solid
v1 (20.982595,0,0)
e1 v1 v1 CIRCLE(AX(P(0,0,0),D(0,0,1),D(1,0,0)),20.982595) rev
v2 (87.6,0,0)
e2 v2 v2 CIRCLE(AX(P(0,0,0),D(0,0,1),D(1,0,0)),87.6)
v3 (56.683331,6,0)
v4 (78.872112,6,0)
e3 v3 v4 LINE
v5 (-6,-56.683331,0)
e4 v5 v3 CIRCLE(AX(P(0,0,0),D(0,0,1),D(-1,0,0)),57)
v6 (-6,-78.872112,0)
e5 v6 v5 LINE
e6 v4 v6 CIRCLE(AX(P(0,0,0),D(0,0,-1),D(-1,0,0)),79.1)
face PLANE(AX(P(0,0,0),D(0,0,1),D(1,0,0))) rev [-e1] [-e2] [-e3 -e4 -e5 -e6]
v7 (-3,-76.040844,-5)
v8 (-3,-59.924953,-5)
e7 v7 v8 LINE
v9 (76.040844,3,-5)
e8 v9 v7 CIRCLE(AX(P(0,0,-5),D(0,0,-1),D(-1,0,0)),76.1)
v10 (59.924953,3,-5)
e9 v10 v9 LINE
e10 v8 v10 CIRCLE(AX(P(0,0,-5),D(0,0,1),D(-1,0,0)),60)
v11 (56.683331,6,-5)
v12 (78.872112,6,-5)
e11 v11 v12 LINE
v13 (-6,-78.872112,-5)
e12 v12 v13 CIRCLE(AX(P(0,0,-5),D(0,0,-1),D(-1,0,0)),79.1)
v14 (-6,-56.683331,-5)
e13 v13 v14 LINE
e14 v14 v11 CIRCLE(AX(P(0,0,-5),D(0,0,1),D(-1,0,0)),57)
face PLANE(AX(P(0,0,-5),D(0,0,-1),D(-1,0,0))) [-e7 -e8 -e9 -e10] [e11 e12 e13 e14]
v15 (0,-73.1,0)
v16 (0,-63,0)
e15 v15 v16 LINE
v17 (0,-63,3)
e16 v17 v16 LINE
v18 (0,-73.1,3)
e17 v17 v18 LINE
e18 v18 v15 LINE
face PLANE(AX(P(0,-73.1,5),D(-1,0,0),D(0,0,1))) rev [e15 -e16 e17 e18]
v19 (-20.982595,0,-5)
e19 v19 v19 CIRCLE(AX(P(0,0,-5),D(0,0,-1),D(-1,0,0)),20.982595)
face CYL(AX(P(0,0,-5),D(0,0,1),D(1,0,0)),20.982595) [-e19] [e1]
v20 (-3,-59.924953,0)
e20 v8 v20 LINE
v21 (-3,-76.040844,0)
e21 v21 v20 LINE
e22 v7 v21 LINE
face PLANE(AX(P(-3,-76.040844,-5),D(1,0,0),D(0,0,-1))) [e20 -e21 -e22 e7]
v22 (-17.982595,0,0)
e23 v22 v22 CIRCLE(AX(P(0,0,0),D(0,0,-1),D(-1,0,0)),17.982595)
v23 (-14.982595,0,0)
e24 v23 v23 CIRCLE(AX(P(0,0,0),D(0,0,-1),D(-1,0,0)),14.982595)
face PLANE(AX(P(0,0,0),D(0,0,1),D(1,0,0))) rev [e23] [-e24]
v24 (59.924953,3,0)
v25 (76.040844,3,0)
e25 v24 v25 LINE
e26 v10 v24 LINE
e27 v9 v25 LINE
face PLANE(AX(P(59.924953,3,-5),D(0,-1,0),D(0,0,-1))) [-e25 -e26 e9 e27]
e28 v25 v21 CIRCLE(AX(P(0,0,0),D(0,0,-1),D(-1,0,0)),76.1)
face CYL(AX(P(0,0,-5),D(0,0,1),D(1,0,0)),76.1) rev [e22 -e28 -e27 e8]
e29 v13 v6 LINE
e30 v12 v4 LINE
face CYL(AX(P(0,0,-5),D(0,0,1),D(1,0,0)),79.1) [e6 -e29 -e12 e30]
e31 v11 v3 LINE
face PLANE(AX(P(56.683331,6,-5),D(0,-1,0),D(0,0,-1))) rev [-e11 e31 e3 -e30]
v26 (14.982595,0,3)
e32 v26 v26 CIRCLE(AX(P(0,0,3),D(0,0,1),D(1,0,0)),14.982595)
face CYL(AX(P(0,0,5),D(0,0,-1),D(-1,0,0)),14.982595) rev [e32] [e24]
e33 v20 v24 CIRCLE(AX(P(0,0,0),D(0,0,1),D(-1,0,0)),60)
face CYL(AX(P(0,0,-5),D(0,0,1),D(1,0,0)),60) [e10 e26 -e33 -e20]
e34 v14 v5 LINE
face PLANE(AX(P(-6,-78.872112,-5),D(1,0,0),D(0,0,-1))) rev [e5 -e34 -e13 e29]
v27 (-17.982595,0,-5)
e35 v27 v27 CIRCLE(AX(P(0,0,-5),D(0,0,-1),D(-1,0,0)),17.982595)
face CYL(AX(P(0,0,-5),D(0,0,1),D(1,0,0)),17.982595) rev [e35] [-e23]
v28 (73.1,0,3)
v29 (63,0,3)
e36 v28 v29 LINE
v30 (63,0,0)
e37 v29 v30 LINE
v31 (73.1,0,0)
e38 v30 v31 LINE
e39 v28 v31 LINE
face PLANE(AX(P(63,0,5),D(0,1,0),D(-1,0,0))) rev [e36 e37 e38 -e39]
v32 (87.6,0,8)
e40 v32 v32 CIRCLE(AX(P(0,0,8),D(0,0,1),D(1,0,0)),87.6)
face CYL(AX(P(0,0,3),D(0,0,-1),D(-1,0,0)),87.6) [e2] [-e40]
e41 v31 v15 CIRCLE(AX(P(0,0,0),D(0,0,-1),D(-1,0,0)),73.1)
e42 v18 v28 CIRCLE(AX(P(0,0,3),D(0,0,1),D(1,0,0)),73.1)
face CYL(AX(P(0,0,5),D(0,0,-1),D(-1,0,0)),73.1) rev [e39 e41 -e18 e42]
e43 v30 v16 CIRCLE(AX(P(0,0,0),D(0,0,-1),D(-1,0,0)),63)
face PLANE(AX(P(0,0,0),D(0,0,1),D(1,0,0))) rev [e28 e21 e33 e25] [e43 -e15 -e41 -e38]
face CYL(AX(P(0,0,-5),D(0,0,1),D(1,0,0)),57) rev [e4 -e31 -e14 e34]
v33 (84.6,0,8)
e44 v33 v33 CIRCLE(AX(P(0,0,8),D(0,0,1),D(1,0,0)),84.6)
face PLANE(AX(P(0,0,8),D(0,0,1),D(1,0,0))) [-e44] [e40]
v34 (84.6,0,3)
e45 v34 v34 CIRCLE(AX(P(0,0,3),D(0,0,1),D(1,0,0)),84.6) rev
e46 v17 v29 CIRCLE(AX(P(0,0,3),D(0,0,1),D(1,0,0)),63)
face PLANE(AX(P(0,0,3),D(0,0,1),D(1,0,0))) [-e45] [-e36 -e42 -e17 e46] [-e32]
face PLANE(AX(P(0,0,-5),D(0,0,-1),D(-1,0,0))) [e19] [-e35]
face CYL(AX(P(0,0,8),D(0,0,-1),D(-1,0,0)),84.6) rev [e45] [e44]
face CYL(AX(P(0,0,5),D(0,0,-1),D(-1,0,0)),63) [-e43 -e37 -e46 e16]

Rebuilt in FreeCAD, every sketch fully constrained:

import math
import FreeCAD as App
import Part
import Sketcher

doc = App.newDocument("Part")
params = doc.addObject("Spreadsheet::Sheet", "Params")
for row, (alias, value) in enumerate([
    ("sketch1_diameter", "175.2 mm"),
    ("pad1_length", "3 mm"),
    ("sketch2_diameter", "175.2 mm"),
    ("sketch2_diameter2", "169.2 mm"),
    ("pad2_length", "5 mm"),
    ("sketch3_radius", "63 mm"),
    ("sketch3_radius2", "73.1 mm"),
    ("pocket1_length", "5 mm"),
    ("sketch4_radius", "57 mm"),
    ("sketch4_radius2", "60 mm"),
    ("sketch4_radius3", "79.1 mm"),
    ("sketch4_radius4", "76.1 mm"),
    ("pad3_length", "5 mm"),
    ("pocket2_length", "5 mm"),
    ("pad4_length", "5 mm"),
], start=1):
    params.set(f"A{row}", alias)
    params.set(f"B{row}", "=" + value)
    params.setAlias(f"B{row}", alias)

body = doc.addObject("PartDesign::Body", "Body")

# Sketch on XY plane
sketch1 = doc.addObject("Sketcher::SketchObject", "Sketch")
body.addObject(sketch1)
sketch1.AttachmentSupport = (doc.XY_Plane, [""])
sketch1.MapMode = "FlatFace"
sketch1.addGeometry(Part.Circle(App.Vector(0, 0, 0), App.Vector(0, 0, 1), 87.6), False)
sketch1.addConstraint([
    Sketcher.Constraint("Coincident", 0, 3, -1, 1),
    Sketcher.Constraint("Diameter", 0, 175.2),
])
sketch1.setExpression("Constraints[1]", "Params.sketch1_diameter")
pad1 = doc.addObject("PartDesign::Pad", "Pad")
body.addObject(pad1)
pad1.Profile = sketch1
pad1.setExpression("Length", "Params.pad1_length")

# Sketch on XY plane
sketch2 = doc.addObject("Sketcher::SketchObject", "Sketch001")
body.addObject(sketch2)
sketch2.AttachmentSupport = (doc.XY_Plane, [""])
sketch2.MapMode = "FlatFace"
sketch2.AttachmentOffset = App.Placement(App.Vector(0, 0, 3), App.Rotation())
sketch2.addGeometry([
    Part.Circle(App.Vector(0, 0, 0), App.Vector(0, 0, 1), 87.6),
    Part.Circle(App.Vector(0, 0, 0), App.Vector(0, 0, 1), 84.6),
], False)
sketch2.addConstraint([
    Sketcher.Constraint("Coincident", 0, 3, -1, 1),
    Sketcher.Constraint("Coincident", 1, 3, -1, 1),
    Sketcher.Constraint("Diameter", 0, 175.2),
    Sketcher.Constraint("Diameter", 1, 169.2),
])
sketch2.setExpression("Constraints[2]", "Params.sketch2_diameter")
sketch2.setExpression("Constraints[3]", "Params.sketch2_diameter2")
pad2 = doc.addObject("PartDesign::Pad", "Pad001")
body.addObject(pad2)
pad2.Profile = sketch2
pad2.setExpression("Length", "Params.pad2_length")

# Sketch on XY plane
sketch3 = doc.addObject("Sketcher::SketchObject", "Sketch002")
body.addObject(sketch3)
sketch3.AttachmentSupport = (doc.XY_Plane, [""])
sketch3.MapMode = "FlatFace"
sketch3.addGeometry([
    Part.LineSegment(App.Vector(63, 0, 0), App.Vector(73.1, 0, 0)),
    Part.ArcOfCircle(Part.Circle(App.Vector(0, 0, 0), App.Vector(0, 0, 1), 73.1), math.radians(-90), math.radians(0)),
    Part.LineSegment(App.Vector(0, -73.1, 0), App.Vector(0, -63, 0)),
    Part.ArcOfCircle(Part.Circle(App.Vector(0, 0, 0), App.Vector(0, 0, 1), 63), math.radians(-90), math.radians(0)),
], False)
sketch3.addConstraint([
    Sketcher.Constraint("Coincident", 0, 2, 1, 2),
    Sketcher.Constraint("Coincident", 1, 1, 2, 1),
    Sketcher.Constraint("Coincident", 2, 2, 3, 1),
    Sketcher.Constraint("Coincident", 3, 2, 0, 1),
    Sketcher.Constraint("Horizontal", 0),
    Sketcher.Constraint("Vertical", 2),
    Sketcher.Constraint("Coincident", 1, 3, -1, 1),
    Sketcher.Constraint("Coincident", 3, 3, -1, 1),
    Sketcher.Constraint("PointOnObject", 0, 2, -1),
    Sketcher.Constraint("PointOnObject", 1, 1, -2),
    Sketcher.Constraint("Radius", 3, 63.0),
    Sketcher.Constraint("Radius", 1, 73.1),
])
sketch3.setExpression("Constraints[10]", "Params.sketch3_radius")
sketch3.setExpression("Constraints[11]", "Params.sketch3_radius2")
pocket1 = doc.addObject("PartDesign::Pocket", "Pocket")
body.addObject(pocket1)
pocket1.Profile = sketch3
pocket1.setExpression("Length", "Params.pocket1_length")
pocket1.Reversed = True

# Sketch on XY plane
sketch4 = doc.addObject("Sketcher::SketchObject", "Sketch003")
body.addObject(sketch4)
sketch4.AttachmentSupport = (doc.XY_Plane, [""])
sketch4.MapMode = "FlatFace"
sketch4.addGeometry([
    Part.LineSegment(App.Vector(-6, -78.872112, 0), App.Vector(-6, -56.683331, 0)),  # 0
    Part.ArcOfCircle(Part.Circle(App.Vector(0, 0, 0), App.Vector(0, 0, 1), 57), math.radians(-96.042328), math.radians(6.042328)),  # 1
    Part.LineSegment(App.Vector(56.683331, 6, 0), App.Vector(78.872112, 6, 0)),  # 2
    Part.ArcOfCircle(Part.Circle(App.Vector(0, 0, 0), App.Vector(0, 0, 1), 79.1), math.radians(-94.350255), math.radians(4.350255)),  # 3
    Part.LineSegment(App.Vector(76.040844, 3, 0), App.Vector(59.924953, 3, 0)),  # 4
    Part.ArcOfCircle(Part.Circle(App.Vector(0, 0, 0), App.Vector(0, 0, 1), 60), math.radians(-92.865984), math.radians(2.865984)),  # 5
    Part.LineSegment(App.Vector(-3, -59.924953, 0), App.Vector(-3, -76.040844, 0)),  # 6
    Part.ArcOfCircle(Part.Circle(App.Vector(0, 0, 0), App.Vector(0, 0, 1), 76.1), math.radians(-92.259289), math.radians(2.259289)),  # 7
], False)
sketch4.addConstraint([
    Sketcher.Constraint("Coincident", 0, 2, 1, 1),
    Sketcher.Constraint("Coincident", 1, 2, 2, 1),
    Sketcher.Constraint("Coincident", 2, 2, 3, 2),
    Sketcher.Constraint("Coincident", 3, 1, 0, 1),
    Sketcher.Constraint("Coincident", 4, 2, 5, 2),
    Sketcher.Constraint("Coincident", 5, 1, 6, 1),
    Sketcher.Constraint("Coincident", 6, 2, 7, 1),
    Sketcher.Constraint("Coincident", 7, 2, 4, 1),
    Sketcher.Constraint("Vertical", 0),
    Sketcher.Constraint("Horizontal", 2),
    Sketcher.Constraint("Horizontal", 4),
    Sketcher.Constraint("Vertical", 6),
    Sketcher.Constraint("Coincident", 1, 3, -1, 1),
    Sketcher.Constraint("Coincident", 3, 3, -1, 1),
    Sketcher.Constraint("Coincident", 5, 3, -1, 1),
    Sketcher.Constraint("Coincident", 7, 3, -1, 1),
    Sketcher.Constraint("Equal", 2, 0),
    Sketcher.Constraint("Equal", 4, 6),
    Sketcher.Constraint("Radius", 1, 57.0),
    Sketcher.Constraint("Radius", 5, 60.0),
    Sketcher.Constraint("Radius", 3, 79.1),
    Sketcher.Constraint("Radius", 7, 76.1),
    Sketcher.Constraint("DistanceX", 0, 2, -1, 1, 6.0),
    Sketcher.Constraint("DistanceY", -1, 1, 4, 2, 3.0),
])
sketch4.setExpression("Constraints[18]", "Params.sketch4_radius")
sketch4.setExpression("Constraints[19]", "Params.sketch4_radius2")
sketch4.setExpression("Constraints[20]", "Params.sketch4_radius3")
sketch4.setExpression("Constraints[21]", "Params.sketch4_radius4")
pad3 = doc.addObject("PartDesign::Pad", "Pad002")
body.addObject(pad3)
pad3.Profile = sketch4
pad3.setExpression("Length", "Params.pad3_length")
pad3.Reversed = True

# Sketch on XY plane
sketch5 = doc.addObject("Sketcher::SketchObject", "Sketch004")
body.addObject(sketch5)
sketch5.AttachmentSupport = (doc.XY_Plane, [""])
sketch5.MapMode = "FlatFace"
sketch5.addGeometry(Part.Circle(App.Vector(0, 0, 0), App.Vector(0, 0, 1), 14.982595), False)
sketch5.addConstraint([
    Sketcher.Constraint("Coincident", 0, 3, -1, 1),
    Sketcher.Constraint("Diameter", 0, 29.96519),
])
pocket2 = doc.addObject("PartDesign::Pocket", "Pocket001")
body.addObject(pocket2)
pocket2.Profile = sketch5
pocket2.setExpression("Length", "Params.pocket2_length")
pocket2.Reversed = True

# Sketch on XY plane
sketch6 = doc.addObject("Sketcher::SketchObject", "Sketch005")
body.addObject(sketch6)
sketch6.AttachmentSupport = (doc.XY_Plane, [""])
sketch6.MapMode = "FlatFace"
sketch6.addGeometry([
    Part.Circle(App.Vector(0, 0, 0), App.Vector(0, 0, 1), 20.982595),
    Part.Circle(App.Vector(0, 0, 0), App.Vector(0, 0, 1), 17.982595),
], False)
sketch6.addConstraint([
    Sketcher.Constraint("Coincident", 0, 3, -1, 1),
    Sketcher.Constraint("Coincident", 1, 3, -1, 1),
    Sketcher.Constraint("Diameter", 0, 41.96519),
    Sketcher.Constraint("Diameter", 1, 35.96519),
])
pad4 = doc.addObject("PartDesign::Pad", "Pad003")
body.addObject(pad4)
pad4.Profile = sketch6
pad4.setExpression("Length", "Params.pad4_length")
pad4.Reversed = True

doc.recompute()
